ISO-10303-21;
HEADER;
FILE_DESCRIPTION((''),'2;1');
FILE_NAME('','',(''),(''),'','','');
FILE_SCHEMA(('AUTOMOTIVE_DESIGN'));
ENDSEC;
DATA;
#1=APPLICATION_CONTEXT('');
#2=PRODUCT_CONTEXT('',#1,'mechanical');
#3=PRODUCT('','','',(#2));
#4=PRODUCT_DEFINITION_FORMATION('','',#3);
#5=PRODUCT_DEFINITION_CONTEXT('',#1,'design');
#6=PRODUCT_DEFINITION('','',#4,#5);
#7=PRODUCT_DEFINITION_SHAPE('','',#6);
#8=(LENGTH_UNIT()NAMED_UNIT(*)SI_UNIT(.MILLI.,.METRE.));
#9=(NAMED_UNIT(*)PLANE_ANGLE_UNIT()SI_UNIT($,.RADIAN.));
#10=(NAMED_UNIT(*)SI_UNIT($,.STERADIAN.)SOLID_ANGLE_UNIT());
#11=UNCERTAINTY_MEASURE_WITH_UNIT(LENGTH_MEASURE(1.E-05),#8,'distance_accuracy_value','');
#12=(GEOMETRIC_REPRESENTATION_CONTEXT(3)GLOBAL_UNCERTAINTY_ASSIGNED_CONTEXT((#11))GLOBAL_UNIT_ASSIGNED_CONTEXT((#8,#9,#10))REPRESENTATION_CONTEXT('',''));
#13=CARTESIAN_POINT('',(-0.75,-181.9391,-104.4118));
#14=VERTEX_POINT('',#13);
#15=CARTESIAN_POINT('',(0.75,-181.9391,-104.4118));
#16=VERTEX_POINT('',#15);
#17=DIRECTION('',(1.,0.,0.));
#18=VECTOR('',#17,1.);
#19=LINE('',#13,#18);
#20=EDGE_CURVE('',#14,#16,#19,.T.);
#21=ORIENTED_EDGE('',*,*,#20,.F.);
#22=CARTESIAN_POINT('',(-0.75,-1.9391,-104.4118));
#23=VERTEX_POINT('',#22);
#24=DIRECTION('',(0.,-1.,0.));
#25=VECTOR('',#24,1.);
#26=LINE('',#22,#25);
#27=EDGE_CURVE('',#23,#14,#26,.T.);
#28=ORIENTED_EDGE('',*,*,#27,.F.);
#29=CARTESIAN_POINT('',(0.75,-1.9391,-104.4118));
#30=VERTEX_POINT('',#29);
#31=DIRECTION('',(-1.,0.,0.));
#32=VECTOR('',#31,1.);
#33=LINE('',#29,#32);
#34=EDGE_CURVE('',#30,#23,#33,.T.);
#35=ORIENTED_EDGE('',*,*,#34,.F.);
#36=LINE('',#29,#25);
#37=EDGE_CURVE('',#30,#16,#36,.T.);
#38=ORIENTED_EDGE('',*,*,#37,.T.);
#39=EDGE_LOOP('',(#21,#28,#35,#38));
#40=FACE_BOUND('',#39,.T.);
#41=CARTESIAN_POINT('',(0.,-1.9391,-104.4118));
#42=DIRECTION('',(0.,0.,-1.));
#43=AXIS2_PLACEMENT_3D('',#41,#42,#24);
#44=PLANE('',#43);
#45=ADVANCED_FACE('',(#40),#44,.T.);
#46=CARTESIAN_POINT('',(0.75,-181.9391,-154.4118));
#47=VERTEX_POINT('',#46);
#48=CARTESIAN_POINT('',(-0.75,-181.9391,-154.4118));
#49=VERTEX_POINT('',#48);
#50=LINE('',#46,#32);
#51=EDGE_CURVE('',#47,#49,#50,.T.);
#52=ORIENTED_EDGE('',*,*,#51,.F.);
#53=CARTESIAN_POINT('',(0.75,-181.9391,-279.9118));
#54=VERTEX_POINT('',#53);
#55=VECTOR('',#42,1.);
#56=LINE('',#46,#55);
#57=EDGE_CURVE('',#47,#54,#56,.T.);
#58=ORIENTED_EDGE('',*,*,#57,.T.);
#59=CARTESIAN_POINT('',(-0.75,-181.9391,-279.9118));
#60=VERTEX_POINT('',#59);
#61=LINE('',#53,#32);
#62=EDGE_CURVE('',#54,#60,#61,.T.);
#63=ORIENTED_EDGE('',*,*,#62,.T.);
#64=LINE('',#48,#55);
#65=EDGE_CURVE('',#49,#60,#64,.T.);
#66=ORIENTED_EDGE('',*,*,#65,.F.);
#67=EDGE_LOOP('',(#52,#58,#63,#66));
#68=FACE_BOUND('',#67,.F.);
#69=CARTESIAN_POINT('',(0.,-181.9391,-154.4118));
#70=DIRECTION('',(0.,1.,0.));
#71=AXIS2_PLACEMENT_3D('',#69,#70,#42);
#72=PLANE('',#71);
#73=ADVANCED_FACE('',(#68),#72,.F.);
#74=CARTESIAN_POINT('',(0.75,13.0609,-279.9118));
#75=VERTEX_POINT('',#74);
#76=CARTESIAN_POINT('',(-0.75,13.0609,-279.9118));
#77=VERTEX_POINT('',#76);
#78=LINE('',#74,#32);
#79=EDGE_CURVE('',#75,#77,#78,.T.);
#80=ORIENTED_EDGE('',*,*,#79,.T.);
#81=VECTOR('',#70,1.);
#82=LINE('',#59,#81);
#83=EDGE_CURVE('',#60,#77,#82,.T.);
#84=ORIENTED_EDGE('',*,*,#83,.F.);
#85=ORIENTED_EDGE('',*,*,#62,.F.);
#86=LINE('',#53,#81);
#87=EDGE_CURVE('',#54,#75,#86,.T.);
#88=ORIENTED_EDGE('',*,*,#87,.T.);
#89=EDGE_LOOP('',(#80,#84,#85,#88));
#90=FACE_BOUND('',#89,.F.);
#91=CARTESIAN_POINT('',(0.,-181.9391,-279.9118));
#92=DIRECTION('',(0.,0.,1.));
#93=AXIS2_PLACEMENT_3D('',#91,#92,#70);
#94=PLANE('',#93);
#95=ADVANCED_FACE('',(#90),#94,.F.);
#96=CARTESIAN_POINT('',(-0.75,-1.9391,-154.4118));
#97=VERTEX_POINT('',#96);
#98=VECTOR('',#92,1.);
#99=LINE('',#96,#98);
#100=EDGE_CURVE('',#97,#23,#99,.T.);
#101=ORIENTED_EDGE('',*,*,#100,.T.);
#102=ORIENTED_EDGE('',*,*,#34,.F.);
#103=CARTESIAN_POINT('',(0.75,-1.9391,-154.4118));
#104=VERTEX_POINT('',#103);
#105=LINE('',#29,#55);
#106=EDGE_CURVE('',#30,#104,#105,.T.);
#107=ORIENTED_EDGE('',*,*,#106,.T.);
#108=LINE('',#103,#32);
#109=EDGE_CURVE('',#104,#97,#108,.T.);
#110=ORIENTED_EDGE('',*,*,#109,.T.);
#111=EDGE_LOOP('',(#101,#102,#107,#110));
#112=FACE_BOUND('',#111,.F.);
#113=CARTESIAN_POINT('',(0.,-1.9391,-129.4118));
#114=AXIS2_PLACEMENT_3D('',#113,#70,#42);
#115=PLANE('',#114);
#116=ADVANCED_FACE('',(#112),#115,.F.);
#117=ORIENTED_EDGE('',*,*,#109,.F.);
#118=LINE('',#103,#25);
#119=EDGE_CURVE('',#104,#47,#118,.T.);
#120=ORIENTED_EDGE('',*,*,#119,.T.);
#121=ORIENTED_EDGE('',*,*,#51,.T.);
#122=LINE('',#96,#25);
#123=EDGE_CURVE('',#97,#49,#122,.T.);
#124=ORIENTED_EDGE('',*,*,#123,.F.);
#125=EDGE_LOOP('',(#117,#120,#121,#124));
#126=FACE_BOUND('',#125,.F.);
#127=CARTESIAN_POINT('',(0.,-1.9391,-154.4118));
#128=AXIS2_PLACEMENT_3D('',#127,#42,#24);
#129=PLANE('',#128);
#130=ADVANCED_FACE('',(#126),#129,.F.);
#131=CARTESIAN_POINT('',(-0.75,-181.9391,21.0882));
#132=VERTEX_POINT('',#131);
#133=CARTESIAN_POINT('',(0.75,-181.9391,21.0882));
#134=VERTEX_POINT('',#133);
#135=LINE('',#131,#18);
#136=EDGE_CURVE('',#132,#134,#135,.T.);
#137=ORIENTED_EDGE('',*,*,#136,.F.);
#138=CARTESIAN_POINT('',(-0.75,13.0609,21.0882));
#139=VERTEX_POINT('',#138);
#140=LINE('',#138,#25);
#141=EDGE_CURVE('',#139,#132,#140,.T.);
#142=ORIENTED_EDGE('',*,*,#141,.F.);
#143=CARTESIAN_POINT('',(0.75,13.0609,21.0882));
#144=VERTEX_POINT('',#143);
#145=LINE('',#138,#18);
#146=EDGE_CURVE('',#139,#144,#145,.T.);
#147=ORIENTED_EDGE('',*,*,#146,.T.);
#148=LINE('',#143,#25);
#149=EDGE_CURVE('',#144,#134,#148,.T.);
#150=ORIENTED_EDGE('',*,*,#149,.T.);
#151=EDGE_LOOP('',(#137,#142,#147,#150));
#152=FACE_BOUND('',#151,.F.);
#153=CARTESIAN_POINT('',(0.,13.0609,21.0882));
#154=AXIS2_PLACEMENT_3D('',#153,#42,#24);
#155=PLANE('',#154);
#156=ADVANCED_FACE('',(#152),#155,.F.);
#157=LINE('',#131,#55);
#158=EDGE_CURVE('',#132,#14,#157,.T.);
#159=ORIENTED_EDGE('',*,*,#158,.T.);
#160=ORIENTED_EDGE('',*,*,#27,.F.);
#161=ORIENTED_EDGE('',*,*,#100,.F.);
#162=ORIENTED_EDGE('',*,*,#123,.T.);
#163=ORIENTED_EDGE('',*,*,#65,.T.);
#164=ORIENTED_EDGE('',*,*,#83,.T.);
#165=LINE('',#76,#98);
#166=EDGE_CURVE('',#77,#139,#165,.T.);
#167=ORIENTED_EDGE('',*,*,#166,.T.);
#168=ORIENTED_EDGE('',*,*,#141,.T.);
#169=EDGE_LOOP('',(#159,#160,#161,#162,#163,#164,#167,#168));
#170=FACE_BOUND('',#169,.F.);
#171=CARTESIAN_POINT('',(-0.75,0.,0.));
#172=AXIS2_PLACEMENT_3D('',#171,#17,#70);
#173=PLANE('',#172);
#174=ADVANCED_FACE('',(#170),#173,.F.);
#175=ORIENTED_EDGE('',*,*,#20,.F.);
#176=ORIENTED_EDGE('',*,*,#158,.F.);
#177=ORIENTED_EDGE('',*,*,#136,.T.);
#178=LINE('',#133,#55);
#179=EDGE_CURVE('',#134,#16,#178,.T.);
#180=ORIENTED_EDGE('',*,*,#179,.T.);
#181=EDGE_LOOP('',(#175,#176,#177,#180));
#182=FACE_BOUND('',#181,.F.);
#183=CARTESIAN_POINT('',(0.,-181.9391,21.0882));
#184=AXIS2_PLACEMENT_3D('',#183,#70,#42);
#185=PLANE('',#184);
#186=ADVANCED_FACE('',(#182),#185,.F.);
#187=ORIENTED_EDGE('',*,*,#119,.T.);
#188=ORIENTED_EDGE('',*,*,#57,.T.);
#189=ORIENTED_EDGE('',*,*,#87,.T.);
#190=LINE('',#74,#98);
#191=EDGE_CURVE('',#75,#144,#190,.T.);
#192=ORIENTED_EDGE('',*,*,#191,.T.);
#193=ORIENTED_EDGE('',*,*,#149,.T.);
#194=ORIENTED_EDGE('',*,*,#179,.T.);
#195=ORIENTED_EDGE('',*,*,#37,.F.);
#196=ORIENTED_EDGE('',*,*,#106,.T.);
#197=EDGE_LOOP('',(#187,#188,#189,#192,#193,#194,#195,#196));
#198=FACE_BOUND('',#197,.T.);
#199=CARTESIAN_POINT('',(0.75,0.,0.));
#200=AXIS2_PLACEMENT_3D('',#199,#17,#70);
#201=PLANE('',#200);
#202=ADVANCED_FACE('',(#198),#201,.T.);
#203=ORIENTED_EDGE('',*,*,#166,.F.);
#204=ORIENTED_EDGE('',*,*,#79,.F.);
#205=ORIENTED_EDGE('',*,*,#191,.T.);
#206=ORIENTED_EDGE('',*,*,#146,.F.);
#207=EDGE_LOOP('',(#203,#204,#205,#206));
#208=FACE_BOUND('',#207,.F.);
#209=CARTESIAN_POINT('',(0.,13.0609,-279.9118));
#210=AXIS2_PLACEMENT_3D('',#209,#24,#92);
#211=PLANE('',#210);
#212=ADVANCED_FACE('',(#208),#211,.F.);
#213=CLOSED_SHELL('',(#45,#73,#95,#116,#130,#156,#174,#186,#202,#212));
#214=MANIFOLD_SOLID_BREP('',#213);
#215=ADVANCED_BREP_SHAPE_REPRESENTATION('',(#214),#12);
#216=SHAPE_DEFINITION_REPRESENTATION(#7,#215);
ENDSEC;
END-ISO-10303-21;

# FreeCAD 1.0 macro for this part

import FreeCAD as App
import Part
import Sketcher

V = App.Vector

doc = App.newDocument("Part")
body = doc.addObject("PartDesign::Body", "Body")

# Sketch on YZ plane
sketch1 = body.newObject("Sketcher::SketchObject", "Sketch")
sketch1.AttachmentSupport = (doc.getObject("YZ_Plane"), [""])
sketch1.MapMode = "FlatFace"
sketch1.addGeometry([
    Part.LineSegment(V(13, -280, 0), V(13, 21, 0)),  # 0
    Part.LineSegment(V(13, 21, 0), V(-182, 21, 0)),  # 1
    Part.LineSegment(V(-182, 21, 0), V(-182, -104, 0)),  # 2
    Part.LineSegment(V(-182, -104, 0), V(-2, -104, 0)),  # 3
    Part.LineSegment(V(-2, -104, 0), V(-2, -154, 0)),  # 4
    Part.LineSegment(V(-2, -154, 0), V(-182, -154, 0)),  # 5
    Part.LineSegment(V(-182, -154, 0), V(-182, -280, 0)),  # 6
    Part.LineSegment(V(-182, -280, 0), V(13, -280, 0)),  # 7
], False)
sketch1.addConstraint([
    Sketcher.Constraint("Coincident", 0, 2, 1, 1),
    Sketcher.Constraint("Coincident", 1, 2, 2, 1),
    Sketcher.Constraint("Coincident", 2, 2, 3, 1),
    Sketcher.Constraint("Coincident", 3, 2, 4, 1),
    Sketcher.Constraint("Coincident", 4, 2, 5, 1),
    Sketcher.Constraint("Coincident", 5, 2, 6, 1),
    Sketcher.Constraint("Coincident", 6, 2, 7, 1),
    Sketcher.Constraint("Coincident", 7, 2, 0, 1),
    Sketcher.Constraint("Vertical", 0),
    Sketcher.Constraint("Horizontal", 1),
    Sketcher.Constraint("Vertical", 2),
    Sketcher.Constraint("Horizontal", 3),
    Sketcher.Constraint("Vertical", 4),
    Sketcher.Constraint("Horizontal", 5),
    Sketcher.Constraint("Vertical", 6),
    Sketcher.Constraint("Horizontal", 7),
    Sketcher.Constraint("Vertical", 2, 2, 5, 2),
    Sketcher.Constraint("Equal", 2, 6),
    Sketcher.Constraint("DistanceX", 1, 2, 1, 1, 195.0),
    Sketcher.Constraint("DistanceY", 0, 1, 0, 2, 301.0),
    Sketcher.Constraint("DistanceX", 3, 1, 3, 2, 180.0),
    Sketcher.Constraint("DistanceY", 4, 2, 4, 1, 50.0),
    Sketcher.Constraint("DistanceX", -1, 1, 0, 2, 13.061),
    Sketcher.Constraint("DistanceY", -1, 1, 0, 2, 21.0882),
])
pad1 = body.newObject("PartDesign::Pad", "Pad")
pad1.Profile = sketch1
pad1.Length = 1.5
pad1.Midplane = True

doc.recompute()
